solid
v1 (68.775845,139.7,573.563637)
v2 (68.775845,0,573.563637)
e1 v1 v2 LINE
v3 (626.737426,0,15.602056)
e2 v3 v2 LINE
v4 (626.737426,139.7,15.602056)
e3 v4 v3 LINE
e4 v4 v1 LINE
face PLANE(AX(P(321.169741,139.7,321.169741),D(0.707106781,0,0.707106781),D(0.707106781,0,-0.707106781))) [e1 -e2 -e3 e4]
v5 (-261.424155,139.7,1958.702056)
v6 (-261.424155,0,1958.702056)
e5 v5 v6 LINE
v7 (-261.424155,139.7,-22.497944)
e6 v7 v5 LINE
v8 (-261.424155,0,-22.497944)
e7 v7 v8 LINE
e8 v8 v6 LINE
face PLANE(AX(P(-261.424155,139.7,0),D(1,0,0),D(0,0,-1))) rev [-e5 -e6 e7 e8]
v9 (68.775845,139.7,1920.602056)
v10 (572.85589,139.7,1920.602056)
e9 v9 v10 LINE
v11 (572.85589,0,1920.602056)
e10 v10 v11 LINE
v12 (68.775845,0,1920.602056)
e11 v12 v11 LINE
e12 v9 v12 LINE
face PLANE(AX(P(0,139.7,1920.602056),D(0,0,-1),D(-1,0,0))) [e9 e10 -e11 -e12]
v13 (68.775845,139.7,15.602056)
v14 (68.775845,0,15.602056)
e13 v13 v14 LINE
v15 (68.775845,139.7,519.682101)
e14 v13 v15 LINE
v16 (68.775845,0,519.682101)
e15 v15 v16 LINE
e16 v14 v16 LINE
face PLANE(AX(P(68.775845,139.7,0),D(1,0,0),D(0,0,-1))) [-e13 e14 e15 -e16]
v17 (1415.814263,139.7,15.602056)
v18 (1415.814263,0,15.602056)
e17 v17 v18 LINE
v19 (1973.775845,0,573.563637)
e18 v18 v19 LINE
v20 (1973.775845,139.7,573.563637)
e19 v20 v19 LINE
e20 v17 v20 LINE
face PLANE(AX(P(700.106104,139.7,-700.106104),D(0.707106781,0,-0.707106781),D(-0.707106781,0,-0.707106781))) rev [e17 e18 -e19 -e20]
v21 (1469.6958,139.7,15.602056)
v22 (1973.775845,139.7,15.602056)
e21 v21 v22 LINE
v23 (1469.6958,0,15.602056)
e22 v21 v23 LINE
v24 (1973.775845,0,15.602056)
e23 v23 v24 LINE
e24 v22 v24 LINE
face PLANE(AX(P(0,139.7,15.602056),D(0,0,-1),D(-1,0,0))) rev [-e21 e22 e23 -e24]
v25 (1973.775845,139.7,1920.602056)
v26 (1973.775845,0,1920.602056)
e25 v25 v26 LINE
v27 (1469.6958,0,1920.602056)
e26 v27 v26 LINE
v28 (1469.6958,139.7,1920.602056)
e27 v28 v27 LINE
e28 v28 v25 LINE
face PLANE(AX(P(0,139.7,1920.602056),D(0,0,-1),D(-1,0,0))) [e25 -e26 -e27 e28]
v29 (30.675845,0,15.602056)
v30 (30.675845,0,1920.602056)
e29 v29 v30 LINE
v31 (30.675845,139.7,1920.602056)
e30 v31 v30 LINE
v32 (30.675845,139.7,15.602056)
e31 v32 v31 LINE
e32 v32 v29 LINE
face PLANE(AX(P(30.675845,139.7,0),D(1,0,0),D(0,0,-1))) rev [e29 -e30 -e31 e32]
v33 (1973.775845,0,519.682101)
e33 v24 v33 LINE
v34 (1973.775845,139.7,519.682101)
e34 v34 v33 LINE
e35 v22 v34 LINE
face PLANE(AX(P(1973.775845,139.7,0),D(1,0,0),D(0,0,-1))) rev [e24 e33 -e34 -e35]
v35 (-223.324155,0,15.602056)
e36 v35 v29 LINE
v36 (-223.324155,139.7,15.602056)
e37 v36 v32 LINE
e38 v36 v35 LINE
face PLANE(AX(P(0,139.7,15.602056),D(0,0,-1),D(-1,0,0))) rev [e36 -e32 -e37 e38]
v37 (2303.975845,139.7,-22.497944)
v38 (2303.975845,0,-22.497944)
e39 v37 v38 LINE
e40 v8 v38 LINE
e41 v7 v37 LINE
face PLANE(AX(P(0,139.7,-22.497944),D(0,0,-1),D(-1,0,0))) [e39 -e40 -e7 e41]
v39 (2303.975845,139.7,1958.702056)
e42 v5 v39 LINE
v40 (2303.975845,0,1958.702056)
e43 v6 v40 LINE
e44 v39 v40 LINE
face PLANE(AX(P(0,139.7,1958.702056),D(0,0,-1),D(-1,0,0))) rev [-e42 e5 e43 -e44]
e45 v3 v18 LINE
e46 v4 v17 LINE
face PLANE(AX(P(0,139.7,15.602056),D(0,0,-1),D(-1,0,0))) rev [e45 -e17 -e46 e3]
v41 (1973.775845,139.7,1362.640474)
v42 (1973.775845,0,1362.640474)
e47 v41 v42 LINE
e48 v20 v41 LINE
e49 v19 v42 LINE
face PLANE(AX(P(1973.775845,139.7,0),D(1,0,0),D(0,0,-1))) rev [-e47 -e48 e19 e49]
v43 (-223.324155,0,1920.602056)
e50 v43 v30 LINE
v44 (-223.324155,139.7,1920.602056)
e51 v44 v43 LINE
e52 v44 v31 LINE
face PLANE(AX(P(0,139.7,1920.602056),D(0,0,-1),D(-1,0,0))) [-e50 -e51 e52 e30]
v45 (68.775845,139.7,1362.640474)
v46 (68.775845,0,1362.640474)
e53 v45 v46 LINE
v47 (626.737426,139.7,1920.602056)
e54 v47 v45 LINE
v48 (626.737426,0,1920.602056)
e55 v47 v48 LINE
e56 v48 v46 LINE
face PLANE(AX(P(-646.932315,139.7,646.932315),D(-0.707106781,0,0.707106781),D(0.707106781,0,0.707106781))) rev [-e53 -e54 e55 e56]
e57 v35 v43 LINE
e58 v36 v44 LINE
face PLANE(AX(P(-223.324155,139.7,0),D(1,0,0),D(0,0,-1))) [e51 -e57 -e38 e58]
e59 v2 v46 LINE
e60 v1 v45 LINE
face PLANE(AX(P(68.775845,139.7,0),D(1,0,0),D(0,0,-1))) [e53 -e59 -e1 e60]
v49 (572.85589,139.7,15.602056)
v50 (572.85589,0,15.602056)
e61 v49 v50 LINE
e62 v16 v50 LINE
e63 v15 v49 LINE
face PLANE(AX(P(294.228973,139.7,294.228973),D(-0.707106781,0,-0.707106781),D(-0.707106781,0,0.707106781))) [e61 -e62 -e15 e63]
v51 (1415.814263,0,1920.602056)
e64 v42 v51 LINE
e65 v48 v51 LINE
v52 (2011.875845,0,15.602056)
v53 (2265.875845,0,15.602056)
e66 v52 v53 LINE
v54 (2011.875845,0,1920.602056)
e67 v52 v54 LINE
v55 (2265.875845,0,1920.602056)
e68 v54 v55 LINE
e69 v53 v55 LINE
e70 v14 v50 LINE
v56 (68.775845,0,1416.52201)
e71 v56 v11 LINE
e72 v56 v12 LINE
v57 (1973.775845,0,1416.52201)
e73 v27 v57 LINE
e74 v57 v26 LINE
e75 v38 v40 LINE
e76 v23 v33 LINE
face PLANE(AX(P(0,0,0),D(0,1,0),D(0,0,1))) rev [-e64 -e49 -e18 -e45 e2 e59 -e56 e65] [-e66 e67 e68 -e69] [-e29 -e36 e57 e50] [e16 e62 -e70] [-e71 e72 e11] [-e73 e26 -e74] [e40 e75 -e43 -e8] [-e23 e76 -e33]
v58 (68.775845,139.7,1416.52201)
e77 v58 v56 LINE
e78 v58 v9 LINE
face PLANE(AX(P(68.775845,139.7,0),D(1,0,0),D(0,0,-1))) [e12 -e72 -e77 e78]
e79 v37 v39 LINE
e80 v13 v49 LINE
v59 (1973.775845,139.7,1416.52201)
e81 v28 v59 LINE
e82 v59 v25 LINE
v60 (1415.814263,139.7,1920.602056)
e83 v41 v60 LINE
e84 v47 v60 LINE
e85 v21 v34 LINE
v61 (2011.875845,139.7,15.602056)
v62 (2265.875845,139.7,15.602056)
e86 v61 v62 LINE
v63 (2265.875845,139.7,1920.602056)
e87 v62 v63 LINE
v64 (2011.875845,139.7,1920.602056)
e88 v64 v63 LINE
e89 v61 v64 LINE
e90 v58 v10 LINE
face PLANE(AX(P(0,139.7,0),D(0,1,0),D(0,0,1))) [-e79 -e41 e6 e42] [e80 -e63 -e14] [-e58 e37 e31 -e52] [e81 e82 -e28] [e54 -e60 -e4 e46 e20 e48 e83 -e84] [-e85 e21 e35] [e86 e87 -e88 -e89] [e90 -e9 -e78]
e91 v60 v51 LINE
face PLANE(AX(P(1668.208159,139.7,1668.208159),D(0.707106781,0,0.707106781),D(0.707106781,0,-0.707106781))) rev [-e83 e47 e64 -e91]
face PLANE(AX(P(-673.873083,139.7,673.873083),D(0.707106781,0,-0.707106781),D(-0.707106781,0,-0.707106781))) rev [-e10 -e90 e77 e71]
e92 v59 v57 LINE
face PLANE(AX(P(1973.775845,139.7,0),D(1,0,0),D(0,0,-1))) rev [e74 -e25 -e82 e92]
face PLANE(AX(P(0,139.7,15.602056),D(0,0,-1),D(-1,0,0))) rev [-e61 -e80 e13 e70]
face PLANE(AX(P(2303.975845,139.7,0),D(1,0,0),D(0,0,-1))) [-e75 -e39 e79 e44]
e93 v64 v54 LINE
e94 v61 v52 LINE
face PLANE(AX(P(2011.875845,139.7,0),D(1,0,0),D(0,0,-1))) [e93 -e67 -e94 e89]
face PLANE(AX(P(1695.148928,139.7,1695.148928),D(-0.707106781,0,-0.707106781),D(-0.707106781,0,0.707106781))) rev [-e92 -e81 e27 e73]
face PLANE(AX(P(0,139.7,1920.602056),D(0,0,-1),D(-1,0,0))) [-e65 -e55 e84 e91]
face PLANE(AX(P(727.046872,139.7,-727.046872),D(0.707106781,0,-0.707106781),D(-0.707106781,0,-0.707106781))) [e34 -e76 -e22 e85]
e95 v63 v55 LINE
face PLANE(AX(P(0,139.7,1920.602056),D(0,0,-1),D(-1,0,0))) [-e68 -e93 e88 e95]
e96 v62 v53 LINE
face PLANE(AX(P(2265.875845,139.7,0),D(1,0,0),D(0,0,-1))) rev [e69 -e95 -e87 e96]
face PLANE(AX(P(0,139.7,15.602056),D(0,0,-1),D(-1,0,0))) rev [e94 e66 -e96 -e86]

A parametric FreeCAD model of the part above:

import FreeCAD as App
import Part
import Sketcher
Q = App.Units.Quantity

doc = App.newDocument("Part")
body = doc.addObject("PartDesign::Body", "Body")

sketch1 = body.newObject("Sketcher::SketchObject", "Sketch")
sketch1.AttachmentSupport = (doc.getObject("XZ_Plane"), [""])
sketch1.MapMode = "FlatFace"
sketch1.addGeometry([
    Part.LineSegment(App.Vector(-261, -22, 0), App.Vector(-261, 1959, 0)),
    Part.LineSegment(App.Vector(-261, 1959, 0), App.Vector(2304, 1959, 0)),
    Part.LineSegment(App.Vector(2304, 1959, 0), App.Vector(2304, -22, 0)),
    Part.LineSegment(App.Vector(2304, -22, 0), App.Vector(-261, -22, 0)),
    Part.LineSegment(App.Vector(2012, 1921, 0), App.Vector(2012, 16, 0)),
    Part.LineSegment(App.Vector(2012, 16, 0), App.Vector(2266, 16, 0)),
    Part.LineSegment(App.Vector(2266, 16, 0), App.Vector(2266, 1921, 0)),
    Part.LineSegment(App.Vector(2266, 1921, 0), App.Vector(2012, 1921, 0)),
    Part.LineSegment(App.Vector(-223, 1921, 0), App.Vector(-223, 16, 0)),
    Part.LineSegment(App.Vector(-223, 16, 0), App.Vector(31, 16, 0)),
    Part.LineSegment(App.Vector(31, 16, 0), App.Vector(31, 1921, 0)),
    Part.LineSegment(App.Vector(31, 1921, 0), App.Vector(-223, 1921, 0)),
    Part.LineSegment(App.Vector(69, 1921, 0), App.Vector(69, 1417, 0)),
    Part.LineSegment(App.Vector(69, 1417, 0), App.Vector(573, 1921, 0)),
    Part.LineSegment(App.Vector(573, 1921, 0), App.Vector(69, 1921, 0)),
    Part.LineSegment(App.Vector(69, 1363, 0), App.Vector(69, 574, 0)),
    Part.LineSegment(App.Vector(69, 574, 0), App.Vector(627, 16, 0)),
    Part.LineSegment(App.Vector(627, 16, 0), App.Vector(1416, 16, 0)),
    Part.LineSegment(App.Vector(1416, 16, 0), App.Vector(1974, 574, 0)),
    Part.LineSegment(App.Vector(1974, 574, 0), App.Vector(1974, 1363, 0)),
    Part.LineSegment(App.Vector(1974, 1363, 0), App.Vector(1416, 1921, 0)),
    Part.LineSegment(App.Vector(1416, 1921, 0), App.Vector(627, 1921, 0)),
    Part.LineSegment(App.Vector(627, 1921, 0), App.Vector(69, 1363, 0)),
    Part.LineSegment(App.Vector(1470, 1921, 0), App.Vector(1974, 1417, 0)),
    Part.LineSegment(App.Vector(1974, 1417, 0), App.Vector(1974, 1921, 0)),
    Part.LineSegment(App.Vector(1974, 1921, 0), App.Vector(1470, 1921, 0)),
    Part.LineSegment(App.Vector(1974, 16, 0), App.Vector(1974, 520, 0)),
    Part.LineSegment(App.Vector(1974, 520, 0), App.Vector(1470, 16, 0)),
    Part.LineSegment(App.Vector(1470, 16, 0), App.Vector(1974, 16, 0)),
    Part.LineSegment(App.Vector(69, 16, 0), App.Vector(573, 16, 0)),
    Part.LineSegment(App.Vector(573, 16, 0), App.Vector(69, 520, 0)),
    Part.LineSegment(App.Vector(69, 520, 0), App.Vector(69, 16, 0)),
], False)
sketch1.addConstraint([
    Sketcher.Constraint("Coincident", 0, 2, 1, 1),
    Sketcher.Constraint("Coincident", 1, 2, 2, 1),
    Sketcher.Constraint("Coincident", 2, 2, 3, 1),
    Sketcher.Constraint("Coincident", 3, 2, 0, 1),
    Sketcher.Constraint("Coincident", 4, 2, 5, 1),
    Sketcher.Constraint("Coincident", 5, 2, 6, 1),
    Sketcher.Constraint("Coincident", 6, 2, 7, 1),
    Sketcher.Constraint("Coincident", 7, 2, 4, 1),
    Sketcher.Constraint("Coincident", 8, 2, 9, 1),
    Sketcher.Constraint("Coincident", 9, 2, 10, 1),
    Sketcher.Constraint("Coincident", 10, 2, 11, 1),
    Sketcher.Constraint("Coincident", 11, 2, 8, 1),
    Sketcher.Constraint("Coincident", 12, 2, 13, 1),
    Sketcher.Constraint("Coincident", 13, 2, 14, 1),
    Sketcher.Constraint("Coincident", 14, 2, 12, 1),
    Sketcher.Constraint("Coincident", 15, 2, 16, 1),
    Sketcher.Constraint("Coincident", 16, 2, 17, 1),
    Sketcher.Constraint("Coincident", 17, 2, 18, 1),
    Sketcher.Constraint("Coincident", 18, 2, 19, 1),
    Sketcher.Constraint("Coincident", 19, 2, 20, 1),
    Sketcher.Constraint("Coincident", 20, 2, 21, 1),
    Sketcher.Constraint("Coincident", 21, 2, 22, 1),
    Sketcher.Constraint("Coincident", 22, 2, 15, 1),
    Sketcher.Constraint("Coincident", 23, 2, 24, 1),
    Sketcher.Constraint("Coincident", 24, 2, 25, 1),
    Sketcher.Constraint("Coincident", 25, 2, 23, 1),
    Sketcher.Constraint("Coincident", 26, 2, 27, 1),
    Sketcher.Constraint("Coincident", 27, 2, 28, 1),
    Sketcher.Constraint("Coincident", 28, 2, 26, 1),
    Sketcher.Constraint("Coincident", 29, 2, 30, 1),
    Sketcher.Constraint("Coincident", 30, 2, 31, 1),
    Sketcher.Constraint("Coincident", 31, 2, 29, 1),
    Sketcher.Constraint("Vertical", 0),
    Sketcher.Constraint("Horizontal", 1),
    Sketcher.Constraint("Vertical", 2),
    Sketcher.Constraint("Horizontal", 3),
    Sketcher.Constraint("Vertical", 4),
    Sketcher.Constraint("Horizontal", 5),
    Sketcher.Constraint("Vertical", 6),
    Sketcher.Constraint("Horizontal", 7),
    Sketcher.Constraint("Vertical", 8),
    Sketcher.Constraint("Horizontal", 9),
    Sketcher.Constraint("Vertical", 10),
    Sketcher.Constraint("Horizontal", 11),
    Sketcher.Constraint("Vertical", 12),
    Sketcher.Constraint("Horizontal", 14),
    Sketcher.Constraint("Vertical", 15),
    Sketcher.Constraint("Horizontal", 17),
    Sketcher.Constraint("Vertical", 19),
    Sketcher.Constraint("Horizontal", 21),
    Sketcher.Constraint("Vertical", 24),
    Sketcher.Constraint("Horizontal", 25),
    Sketcher.Constraint("Vertical", 26),
    Sketcher.Constraint("Horizontal", 28),
    Sketcher.Constraint("Horizontal", 29),
    Sketcher.Constraint("Vertical", 31),
    Sketcher.Constraint("Perpendicular", 13, 16),
    Sketcher.Constraint("Perpendicular", 16, 18),
    Sketcher.Constraint("Perpendicular", 18, 20),
    Sketcher.Constraint("Perpendicular", 20, 22),
    Sketcher.Constraint("Perpendicular", 22, 23),
    Sketcher.Constraint("Perpendicular", 23, 27),
    Sketcher.Constraint("Perpendicular", 27, 30),
    Sketcher.Constraint("Horizontal", 5, 2, 8, 2),
    Sketcher.Constraint("Horizontal", 7, 2, 10, 2),
    Sketcher.Constraint("Horizontal", 11, 2, 13, 2),
    Sketcher.Constraint("Horizontal", 9, 2, 16, 2),
    Sketcher.Constraint("Horizontal", 15, 2, 18, 2),
    Sketcher.Constraint("Horizontal", 14, 2, 20, 2),
    Sketcher.Constraint("Horizontal", 19, 2, 22, 2),
    Sketcher.Constraint("Horizontal", 12, 2, 23, 2),
    Sketcher.Constraint("Horizontal", 21, 2, 24, 2),
    Sketcher.Constraint("Horizontal", 17, 2, 27, 2),
    Sketcher.Constraint("Horizontal", 28, 2, 29, 2),
    Sketcher.Constraint("Horizontal", 26, 2, 30, 2),
    Sketcher.Constraint("Vertical", 14, 2, 15, 2),
    Sketcher.Constraint("Vertical", 17, 2, 20, 2),
    Sketcher.Constraint("Vertical", 16, 2, 21, 2),
    Sketcher.Constraint("Vertical", 19, 2, 23, 2),
    Sketcher.Constraint("Vertical", 24, 2, 26, 2),
    Sketcher.Constraint("Vertical", 25, 2, 27, 2),
    Sketcher.Constraint("Vertical", 13, 2, 29, 2),
    Sketcher.Constraint("Equal", 7, 9),
    Sketcher.Constraint("Equal", 21, 15),
    Sketcher.Constraint("DistanceX", 1, 1, 1, 2, Q("101 in")),
    Sketcher.Constraint("DistanceX", 5, 1, 5, 2, Q("10 in")),
    Sketcher.Constraint("DistanceY", 0, 1, 0, 2, Q("78 in")),
    Sketcher.Constraint("DistanceY", 4, 2, 4, 1, Q("75 in")),
    Sketcher.Constraint("DistanceX", 8, 2, 4, 2, Q("88 in")),
    Sketcher.Constraint("DistanceX", 0, 2, 12, 2, Q("13 in")),
    Sketcher.Constraint("DistanceX", 4, 2, 2, 2, Q("11.5 in")),
    Sketcher.Constraint("DistanceY", 2, 2, 4, 2, Q("1.5 in")),
    Sketcher.Constraint("DistanceX", -1, 1, 25, 2, Q("1469.6958 mm")),
    Sketcher.Constraint("DistanceY", -1, 1, 26, 2, Q("519.682101 mm")),
    Sketcher.Constraint("DistanceX", 14, 2, 14, 1, Q("504.080045 mm")),
    Sketcher.Constraint("DistanceX", 17, 1, 17, 2, Q("789.076836 mm")),
])
pad1 = body.newObject("PartDesign::Pad", "Pad")
pad1.Profile = sketch1
pad1.Length = Q("5.5 in")
pad1.Reversed = True

doc.recompute()
